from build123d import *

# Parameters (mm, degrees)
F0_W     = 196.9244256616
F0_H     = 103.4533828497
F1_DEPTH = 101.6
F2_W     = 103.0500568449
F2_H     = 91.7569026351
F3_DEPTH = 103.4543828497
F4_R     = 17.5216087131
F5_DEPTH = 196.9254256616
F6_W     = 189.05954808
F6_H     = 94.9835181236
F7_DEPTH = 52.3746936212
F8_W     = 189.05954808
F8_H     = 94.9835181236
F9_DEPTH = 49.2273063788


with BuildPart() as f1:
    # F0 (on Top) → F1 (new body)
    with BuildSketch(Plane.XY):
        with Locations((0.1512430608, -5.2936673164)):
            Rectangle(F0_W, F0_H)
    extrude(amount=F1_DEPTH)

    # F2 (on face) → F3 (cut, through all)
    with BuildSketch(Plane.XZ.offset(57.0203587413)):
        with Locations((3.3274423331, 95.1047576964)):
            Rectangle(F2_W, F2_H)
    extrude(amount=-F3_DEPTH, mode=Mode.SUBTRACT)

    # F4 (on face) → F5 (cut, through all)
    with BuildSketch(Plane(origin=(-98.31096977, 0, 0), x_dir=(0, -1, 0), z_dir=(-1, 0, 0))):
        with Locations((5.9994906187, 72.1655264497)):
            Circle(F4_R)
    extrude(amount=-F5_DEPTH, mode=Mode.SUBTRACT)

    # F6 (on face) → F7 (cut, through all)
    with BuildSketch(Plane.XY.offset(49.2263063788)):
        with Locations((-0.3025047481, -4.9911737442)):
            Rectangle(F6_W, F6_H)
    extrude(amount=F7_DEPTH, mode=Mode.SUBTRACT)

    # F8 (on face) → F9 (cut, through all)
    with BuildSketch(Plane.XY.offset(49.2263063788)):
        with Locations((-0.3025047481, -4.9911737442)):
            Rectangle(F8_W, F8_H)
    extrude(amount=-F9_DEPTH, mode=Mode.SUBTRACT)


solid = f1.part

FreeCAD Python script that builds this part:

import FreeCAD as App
import Part
import Sketcher

V = App.Vector
Q = App.Units.Quantity

doc = App.newDocument("Part")
body = doc.addObject("PartDesign::Body", "Body")

sketch1 = body.newObject("Sketcher::SketchObject", "Sketch")
sketch1.AttachmentSupport = (doc.getObject("XY_Plane"), [""])
sketch1.MapMode = "FlatFace"
sketch1.addGeometry(Part.LineSegment(V(-98, 46, 0), V(-98, -57, 0)), False)
sketch1.addGeometry(Part.LineSegment(V(-98, -57, 0), V(99, -57, 0)), False)
sketch1.addGeometry(Part.LineSegment(V(99, -57, 0), V(99, 46, 0)), False)
sketch1.addGeometry(Part.LineSegment(V(99, 46, 0), V(-98, 46, 0)), False)
sketch1.addConstraint(Sketcher.Constraint("Coincident", 0, 2, 1, 1))
sketch1.addConstraint(Sketcher.Constraint("Coincident", 1, 2, 2, 1))
sketch1.addConstraint(Sketcher.Constraint("Coincident", 2, 2, 3, 1))
sketch1.addConstraint(Sketcher.Constraint("Coincident", 3, 2, 0, 1))
sketch1.addConstraint(Sketcher.Constraint("Vertical", 0))
sketch1.addConstraint(Sketcher.Constraint("Horizontal", 1))
sketch1.addConstraint(Sketcher.Constraint("Vertical", 2))
sketch1.addConstraint(Sketcher.Constraint("Horizontal", 3))
sketch1.addConstraint(Sketcher.Constraint("DistanceX", 1, 1, 1, 2, Q("196.924426 mm")))
sketch1.addConstraint(Sketcher.Constraint("DistanceY", 0, 2, 0, 1, Q("103.453383 mm")))
sketch1.addConstraint(Sketcher.Constraint("DistanceX", 0, 2, -1, 1, Q("98.31097 mm")))
sketch1.addConstraint(Sketcher.Constraint("DistanceY", 0, 2, -1, 1, Q("57.020359 mm")))
pad1 = body.newObject("PartDesign::Pad", "Pad")
pad1.Profile = sketch1
pad1.Length = Q("4 in")

sketch2 = body.newObject("Sketcher::SketchObject", "Sketch001")
sketch2.AttachmentSupport = (doc.getObject("XZ_Plane"), [""])
sketch2.MapMode = "FlatFace"
sketch2.AttachmentOffset = App.Placement(V(0, 0, 57.020359), App.Rotation())
sketch2.addGeometry(Part.LineSegment(V(-48, 141, 0), V(-48, 49, 0)), False)
sketch2.addGeometry(Part.LineSegment(V(-48, 49, 0), V(55, 49, 0)), False)
sketch2.addGeometry(Part.LineSegment(V(55, 49, 0), V(55, 141, 0)), False)
sketch2.addGeometry(Part.LineSegment(V(55, 141, 0), V(-48, 141, 0)), False)
sketch2.addConstraint(Sketcher.Constraint("Coincident", 0, 2, 1, 1))
sketch2.addConstraint(Sketcher.Constraint("Coincident", 1, 2, 2, 1))
sketch2.addConstraint(Sketcher.Constraint("Coincident", 2, 2, 3, 1))
sketch2.addConstraint(Sketcher.Constraint("Coincident", 3, 2, 0, 1))
sketch2.addConstraint(Sketcher.Constraint("Vertical", 0))
sketch2.addConstraint(Sketcher.Constraint("Horizontal", 1))
sketch2.addConstraint(Sketcher.Constraint("Vertical", 2))
sketch2.addConstraint(Sketcher.Constraint("Horizontal", 3))
sketch2.addConstraint(Sketcher.Constraint("DistanceX", 1, 1, 1, 2, Q("103.050057 mm")))
sketch2.addConstraint(Sketcher.Constraint("DistanceY", 0, 2, 0, 1, Q("91.756903 mm")))
sketch2.addConstraint(Sketcher.Constraint("DistanceX", -1, 1, 1, 2, Q("54.852471 mm")))
sketch2.addConstraint(Sketcher.Constraint("DistanceY", -1, 1, 2, 2, Q("140.983209 mm")))
pocket1 = body.newObject("PartDesign::Pocket", "Pocket")
pocket1.Profile = sketch2
pocket1.Type = "ThroughAll"

sketch3 = body.newObject("Sketcher::SketchObject", "Sketch002")
sketch3.AttachmentSupport = (doc.getObject("YZ_Plane"), [""])
sketch3.MapMode = "FlatFace"
sketch3.AttachmentOffset = App.Placement(V(0, 0, -98.31097), App.Rotation())
sketch3.addGeometry(Part.Circle(V(-6, 72, 0), V(0, 0, 1), 18), False)
sketch3.addConstraint(Sketcher.Constraint("Diameter", 0, Q("35.043217 mm")))
sketch3.addConstraint(Sketcher.Constraint("DistanceX", 0, 3, -1, 1, Q("5.999491 mm")))
sketch3.addConstraint(Sketcher.Constraint("DistanceY", -1, 1, 0, 3, Q("72.165526 mm")))
pocket2 = body.newObject("PartDesign::Pocket", "Pocket001")
pocket2.Profile = sketch3
pocket2.Type = "ThroughAll"
pocket2.Reversed = True

sketch4 = body.newObject("Sketcher::SketchObject", "Sketch003")
sketch4.AttachmentSupport = (doc.getObject("XY_Plane"), [""])
sketch4.MapMode = "FlatFace"
sketch4.AttachmentOffset = App.Placement(V(0, 0, 49.226306), App.Rotation())
sketch4.addGeometry(Part.LineSegment(V(-95, 43, 0), V(-95, -52, 0)), False)
sketch4.addGeometry(Part.LineSegment(V(-95, -52, 0), V(94, -52, 0)), False)
sketch4.addGeometry(Part.LineSegment(V(94, -52, 0), V(94, 43, 0)), False)
sketch4.addGeometry(Part.LineSegment(V(94, 43, 0), V(-95, 43, 0)), False)
sketch4.addConstraint(Sketcher.Constraint("Coincident", 0, 2, 1, 1))
sketch4.addConstraint(Sketcher.Constraint("Coincident", 1, 2, 2, 1))
sketch4.addConstraint(Sketcher.Constraint("Coincident", 2, 2, 3, 1))
sketch4.addConstraint(Sketcher.Constraint("Coincident", 3, 2, 0, 1))
sketch4.addConstraint(Sketcher.Constraint("Vertical", 0))
sketch4.addConstraint(Sketcher.Constraint("Horizontal", 1))
sketch4.addConstraint(Sketcher.Constraint("Vertical", 2))
sketch4.addConstraint(Sketcher.Constraint("Horizontal", 3))
sketch4.addConstraint(Sketcher.Constraint("DistanceX", 1, 1, 1, 2, Q("189.059548 mm")))
sketch4.addConstraint(Sketcher.Constraint("DistanceY", 0, 2, 0, 1, Q("94.983518 mm")))
sketch4.addConstraint(Sketcher.Constraint("DistanceX", 0, 2, -1, 1, Q("94.832279 mm")))
sketch4.addConstraint(Sketcher.Constraint("DistanceY", 0, 2, -1, 1, Q("52.482933 mm")))
pocket3 = body.newObject("PartDesign::Pocket", "Pocket002")
pocket3.Profile = sketch4
pocket3.Type = "ThroughAll"
pocket3.Reversed = True

sketch5 = body.newObject("Sketcher::SketchObject", "Sketch004")
sketch5.AttachmentSupport = (doc.getObject("XY_Plane"), [""])
sketch5.MapMode = "FlatFace"
sketch5.AttachmentOffset = App.Placement(V(0, 0, 49.226306), App.Rotation())
sketch5.addGeometry(Part.LineSegment(V(-95, 43, 0), V(-95, -52, 0)), False)
sketch5.addGeometry(Part.LineSegment(V(-95, -52, 0), V(94, -52, 0)), False)
sketch5.addGeometry(Part.LineSegment(V(94, -52, 0), V(94, 43, 0)), False)
sketch5.addGeometry(Part.LineSegment(V(94, 43, 0), V(-95, 43, 0)), False)
sketch5.addConstraint(Sketcher.Constraint("Coincident", 0, 2, 1, 1))
sketch5.addConstraint(Sketcher.Constraint("Coincident", 1, 2, 2, 1))
sketch5.addConstraint(Sketcher.Constraint("Coincident", 2, 2, 3, 1))
sketch5.addConstraint(Sketcher.Constraint("Coincident", 3, 2, 0, 1))
sketch5.addConstraint(Sketcher.Constraint("Vertical", 0))
sketch5.addConstraint(Sketcher.Constraint("Horizontal", 1))
sketch5.addConstraint(Sketcher.Constraint("Vertical", 2))
sketch5.addConstraint(Sketcher.Constraint("Horizontal", 3))
sketch5.addConstraint(Sketcher.Constraint("DistanceX", 1, 1, 1, 2, Q("189.059548 mm")))
sketch5.addConstraint(Sketcher.Constraint("DistanceY", 0, 2, 0, 1, Q("94.983518 mm")))
sketch5.addConstraint(Sketcher.Constraint("DistanceX", 0, 2, -1, 1, Q("94.832279 mm")))
sketch5.addConstraint(Sketcher.Constraint("DistanceY", 0, 2, -1, 1, Q("52.482933 mm")))
pocket4 = body.newObject("PartDesign::Pocket", "Pocket003")
pocket4.Profile = sketch5
pocket4.Type = "ThroughAll"

doc.recompute()
